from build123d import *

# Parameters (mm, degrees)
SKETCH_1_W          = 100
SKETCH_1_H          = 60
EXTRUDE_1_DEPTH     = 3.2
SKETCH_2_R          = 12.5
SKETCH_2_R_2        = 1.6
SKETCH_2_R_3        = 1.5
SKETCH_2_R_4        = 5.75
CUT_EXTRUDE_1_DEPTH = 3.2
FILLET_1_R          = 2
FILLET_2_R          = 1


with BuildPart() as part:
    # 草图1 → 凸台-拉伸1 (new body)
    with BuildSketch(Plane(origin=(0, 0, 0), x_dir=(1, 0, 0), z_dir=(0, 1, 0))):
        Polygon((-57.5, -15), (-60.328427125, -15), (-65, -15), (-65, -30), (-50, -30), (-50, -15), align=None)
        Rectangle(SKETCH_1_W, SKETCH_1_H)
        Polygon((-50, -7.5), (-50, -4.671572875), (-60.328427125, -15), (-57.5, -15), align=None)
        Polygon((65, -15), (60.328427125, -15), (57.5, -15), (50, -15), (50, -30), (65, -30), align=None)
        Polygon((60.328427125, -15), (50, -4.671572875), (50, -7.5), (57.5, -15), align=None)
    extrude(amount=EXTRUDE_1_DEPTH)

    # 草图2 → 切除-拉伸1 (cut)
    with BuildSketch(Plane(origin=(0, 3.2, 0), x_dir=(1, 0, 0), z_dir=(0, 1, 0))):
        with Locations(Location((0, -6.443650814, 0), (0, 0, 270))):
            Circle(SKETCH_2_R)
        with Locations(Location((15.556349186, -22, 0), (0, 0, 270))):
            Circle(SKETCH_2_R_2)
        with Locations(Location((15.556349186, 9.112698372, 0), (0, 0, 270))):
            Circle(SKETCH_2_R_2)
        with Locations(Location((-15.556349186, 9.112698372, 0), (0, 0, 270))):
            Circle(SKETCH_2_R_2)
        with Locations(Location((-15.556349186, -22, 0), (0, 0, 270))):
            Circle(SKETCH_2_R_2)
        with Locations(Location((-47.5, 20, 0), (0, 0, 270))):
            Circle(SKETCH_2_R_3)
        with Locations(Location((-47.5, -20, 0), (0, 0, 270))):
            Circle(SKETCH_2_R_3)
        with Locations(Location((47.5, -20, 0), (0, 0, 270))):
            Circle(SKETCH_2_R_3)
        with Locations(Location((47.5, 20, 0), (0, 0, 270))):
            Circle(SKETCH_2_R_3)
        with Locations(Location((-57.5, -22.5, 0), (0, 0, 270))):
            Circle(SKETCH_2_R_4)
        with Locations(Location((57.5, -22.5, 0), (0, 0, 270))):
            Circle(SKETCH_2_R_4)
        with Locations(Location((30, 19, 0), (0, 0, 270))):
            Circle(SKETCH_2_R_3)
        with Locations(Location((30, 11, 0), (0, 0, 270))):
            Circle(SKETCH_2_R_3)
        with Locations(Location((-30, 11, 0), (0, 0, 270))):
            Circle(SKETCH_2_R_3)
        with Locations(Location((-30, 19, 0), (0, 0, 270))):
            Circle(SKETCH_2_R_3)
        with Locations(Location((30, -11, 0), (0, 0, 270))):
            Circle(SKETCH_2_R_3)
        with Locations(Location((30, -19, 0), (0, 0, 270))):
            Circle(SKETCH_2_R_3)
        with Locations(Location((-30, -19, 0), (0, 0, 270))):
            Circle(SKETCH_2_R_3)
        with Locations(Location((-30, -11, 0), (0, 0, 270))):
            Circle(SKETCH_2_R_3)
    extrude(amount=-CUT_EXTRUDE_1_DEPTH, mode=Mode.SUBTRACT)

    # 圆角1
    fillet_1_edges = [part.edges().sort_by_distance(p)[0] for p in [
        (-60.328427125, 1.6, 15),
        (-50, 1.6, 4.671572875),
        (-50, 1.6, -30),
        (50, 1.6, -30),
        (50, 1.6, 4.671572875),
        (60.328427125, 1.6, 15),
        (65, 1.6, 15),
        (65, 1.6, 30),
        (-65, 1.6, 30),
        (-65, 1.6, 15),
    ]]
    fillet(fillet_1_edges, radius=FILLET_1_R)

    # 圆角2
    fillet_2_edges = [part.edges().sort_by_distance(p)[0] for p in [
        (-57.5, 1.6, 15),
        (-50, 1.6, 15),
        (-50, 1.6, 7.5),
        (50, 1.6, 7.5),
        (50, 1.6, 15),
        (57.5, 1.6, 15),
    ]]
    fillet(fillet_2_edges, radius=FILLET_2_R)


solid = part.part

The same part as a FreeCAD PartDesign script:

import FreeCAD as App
import Part
import Sketcher

V = App.Vector
Q = App.Units.Quantity


def edges_at(feature, points):
    """Names of the edges that pass closest to the given points."""
    edges = feature.Shape.Edges
    near = lambda p: min(range(len(edges)), key=lambda i: edges[i].distToShape(Part.Vertex(*p))[0])
    return sorted({f"Edge{near(p) + 1}" for p in points})

doc = App.newDocument("Part")
body = doc.addObject("PartDesign::Body", "Body")

# Sketch on XZ plane
sketch1 = body.newObject("Sketcher::SketchObject", "Sketch")
sketch1.AttachmentSupport = (doc.getObject("XZ_Plane"), [""])
sketch1.MapMode = "FlatFace"
sketch1.addGeometry([
    Part.LineSegment(V(-65, 15, 0), V(-65, 30, 0)),  # 0
    Part.LineSegment(V(-65, 30, 0), V(65, 30, 0)),  # 1
    Part.LineSegment(V(65, 30, 0), V(65, 15, 0)),  # 2
    Part.LineSegment(V(65, 15, 0), V(60.3, 15, 0)),  # 3
    Part.LineSegment(V(60.3, 15, 0), V(50, 4.7, 0)),  # 4
    Part.LineSegment(V(50, 4.7, 0), V(50, -30, 0)),  # 5
    Part.LineSegment(V(50, -30, 0), V(-50, -30, 0)),  # 6
    Part.LineSegment(V(-50, -30, 0), V(-50, 4.7, 0)),  # 7
    Part.LineSegment(V(-50, 4.7, 0), V(-60.3, 15, 0)),  # 8
    Part.LineSegment(V(-60.3, 15, 0), V(-65, 15, 0)),  # 9
    Part.LineSegment(V(57.5, 15, 0), V(50, 15, 0)),  # 10
    Part.LineSegment(V(50, 15, 0), V(50, 7.5, 0)),  # 11
    Part.LineSegment(V(50, 7.5, 0), V(57.5, 15, 0)),  # 12
    Part.LineSegment(V(-50, 7.5, 0), V(-50, 15, 0)),  # 13
    Part.LineSegment(V(-50, 15, 0), V(-57.5, 15, 0)),  # 14
    Part.LineSegment(V(-57.5, 15, 0), V(-50, 7.5, 0)),  # 15
], False)
sketch1.addConstraint([
    Sketcher.Constraint("Coincident", 0, 2, 1, 1),
    Sketcher.Constraint("Coincident", 1, 2, 2, 1),
    Sketcher.Constraint("Coincident", 2, 2, 3, 1),
    Sketcher.Constraint("Coincident", 3, 2, 4, 1),
    Sketcher.Constraint("Coincident", 4, 2, 5, 1),
    Sketcher.Constraint("Coincident", 5, 2, 6, 1),
    Sketcher.Constraint("Coincident", 6, 2, 7, 1),
    Sketcher.Constraint("Coincident", 7, 2, 8, 1),
    Sketcher.Constraint("Coincident", 8, 2, 9, 1),
    Sketcher.Constraint("Coincident", 9, 2, 0, 1),
    Sketcher.Constraint("Coincident", 10, 2, 11, 1),
    Sketcher.Constraint("Coincident", 11, 2, 12, 1),
    Sketcher.Constraint("Coincident", 12, 2, 10, 1),
    Sketcher.Constraint("Coincident", 13, 2, 14, 1),
    Sketcher.Constraint("Coincident", 14, 2, 15, 1),
    Sketcher.Constraint("Coincident", 15, 2, 13, 1),
    Sketcher.Constraint("Vertical", 0),
    Sketcher.Constraint("Horizontal", 1),
    Sketcher.Constraint("Vertical", 2),
    Sketcher.Constraint("Horizontal", 3),
    Sketcher.Constraint("Vertical", 5),
    Sketcher.Constraint("Horizontal", 6),
    Sketcher.Constraint("Vertical", 7),
    Sketcher.Constraint("Horizontal", 9),
    Sketcher.Constraint("Horizontal", 10),
    Sketcher.Constraint("Vertical", 11),
    Sketcher.Constraint("Vertical", 13),
    Sketcher.Constraint("Horizontal", 14),
    Sketcher.Constraint("Symmetric", 4, 2, 7, 2, -2),
    Sketcher.Constraint("Symmetric", 3, 2, 8, 2, -2),
    Sketcher.Constraint("Symmetric", 10, 2, 13, 2, -2),
    Sketcher.Constraint("Perpendicular", 4, 8),
    Sketcher.Constraint("Perpendicular", 8, 12),
    Sketcher.Constraint("Perpendicular", 12, 15),
    Sketcher.Constraint("Horizontal", 9, 2, 10, 2),
    Sketcher.Constraint("Horizontal", 11, 2, 15, 2),
    Sketcher.Constraint("Vertical", 5, 2, 10, 2),
    Sketcher.Constraint("Equal", 3, 9),
    Sketcher.Constraint("DistanceX", 1, 1, 1, 2, Q("130 mm")),
    Sketcher.Constraint("DistanceX", 6, 2, 6, 1, Q("100 mm")),
    Sketcher.Constraint("DistanceY", 0, 1, 0, 2, Q("15 mm")),
    Sketcher.Constraint("DistanceX", 10, 2, 10, 1, Q("7.5 mm")),
    Sketcher.Constraint("DistanceY", -1, 1, 0, 2, Q("30 mm")),
    Sketcher.Constraint("DistanceY", 5, 2, -1, 1, Q("30 mm")),
    Sketcher.Constraint("Distance", 4, Q("14.606602 mm")),
])
pad1 = body.newObject("PartDesign::Pad", "Pad")
pad1.Profile = sketch1
pad1.Length = 3.2
pad1.Reversed = True

# Sketch on XZ plane
sketch2 = body.newObject("Sketcher::SketchObject", "Sketch001")
sketch2.AttachmentSupport = (doc.getObject("XZ_Plane"), [""])
sketch2.MapMode = "FlatFace"
sketch2.AttachmentOffset = App.Placement(V(0, 0, -3.2), App.Rotation())
sketch2.addGeometry([
    Part.Circle(V(0, 6.4, 0), V(0, 0, 1), 12.5),  # 0
    Part.Circle(V(15.6, 22, 0), V(0, 0, 1), 1.6),  # 1
    Part.Circle(V(15.6, -9.1, 0), V(0, 0, 1), 1.6),  # 2
    Part.Circle(V(-15.6, -9.1, 0), V(0, 0, 1), 1.6),  # 3
    Part.Circle(V(-15.6, 22, 0), V(0, 0, 1), 1.6),  # 4
    Part.Circle(V(-47.5, -20, 0), V(0, 0, 1), 1.5),  # 5
    Part.Circle(V(-47.5, 20, 0), V(0, 0, 1), 1.5),  # 6
    Part.Circle(V(47.5, 20, 0), V(0, 0, 1), 1.5),  # 7
    Part.Circle(V(47.5, -20, 0), V(0, 0, 1), 1.5),  # 8
    Part.Circle(V(-57.5, 22.5, 0), V(0, 0, 1), 5.8),  # 9
    Part.Circle(V(57.5, 22.5, 0), V(0, 0, 1), 5.8),  # 10
    Part.Circle(V(30, -19, 0), V(0, 0, 1), 1.5),  # 11
    Part.Circle(V(30, -11, 0), V(0, 0, 1), 1.5),  # 12
    Part.Circle(V(-30, -11, 0), V(0, 0, 1), 1.5),  # 13
    Part.Circle(V(-30, -19, 0), V(0, 0, 1), 1.5),  # 14
    Part.Circle(V(30, 11, 0), V(0, 0, 1), 1.5),  # 15
    Part.Circle(V(30, 19, 0), V(0, 0, 1), 1.5),  # 16
    Part.Circle(V(-30, 19, 0), V(0, 0, 1), 1.5),  # 17
    Part.Circle(V(-30, 11, 0), V(0, 0, 1), 1.5),  # 18
], False)
sketch2.addConstraint([
    Sketcher.Constraint("Equal", 1, 2),
    Sketcher.Constraint("Equal", 2, 3),
    Sketcher.Constraint("Equal", 3, 4),
    Sketcher.Constraint("Equal", 5, 6),
    Sketcher.Constraint("Equal", 6, 7),
    Sketcher.Constraint("Equal", 7, 8),
    Sketcher.Constraint("Equal", 9, 10),
    Sketcher.Constraint("Equal", 8, 11),
    Sketcher.Constraint("Equal", 11, 12),
    Sketcher.Constraint("Equal", 12, 13),
    Sketcher.Constraint("Equal", 13, 14),
    Sketcher.Constraint("Equal", 14, 15),
    Sketcher.Constraint("Equal", 15, 16),
    Sketcher.Constraint("Equal", 16, 17),
    Sketcher.Constraint("Equal", 17, 18),
    Sketcher.Constraint("Symmetric", 5, 3, 7, 3, -1, 1),
    Sketcher.Constraint("Symmetric", 6, 3, 8, 3, -1, 1),
    Sketcher.Constraint("Symmetric", 13, 3, 15, 3, -1, 1),
    Sketcher.Constraint("Symmetric", 14, 3, 16, 3, -1, 1),
    Sketcher.Constraint("Symmetric", 11, 3, 17, 3, -1, 1),
    Sketcher.Constraint("Symmetric", 12, 3, 18, 3, -1, 1),
    Sketcher.Constraint("Symmetric", 2, 3, 3, 3, -2),
    Sketcher.Constraint("Symmetric", 1, 3, 4, 3, -2),
    Sketcher.Constraint("Symmetric", 6, 3, 7, 3, -2),
    Sketcher.Constraint("Symmetric", 9, 3, 10, 3, -2),
    Sketcher.Constraint("Symmetric", 12, 3, 13, 3, -2),
    Sketcher.Constraint("Symmetric", 11, 3, 14, 3, -2),
    Sketcher.Constraint("PointOnObject", 0, 3, -2),
    Sketcher.Constraint("Vertical", 1, 3, 2, 3),
    Sketcher.Constraint("Vertical", 11, 3, 12, 3),
    Sketcher.Constraint("Diameter", 0, Q("25 mm")),
    Sketcher.Constraint("Diameter", 5, Q("3 mm")),
    Sketcher.Constraint("Diameter", 1, Q("3.2 mm")),
    Sketcher.Constraint("Diameter", 9, Q("11.5 mm")),
    Sketcher.Constraint("DistanceY", -1, 1, 1, 3, Q("22 mm")),
    Sketcher.Constraint("DistanceY", 5, 3, -1, 1, Q("20 mm")),
    Sketcher.Constraint("DistanceX", -1, 1, 11, 3, Q("30 mm")),
    Sketcher.Constraint("DistanceY", 11, 3, -1, 1, Q("19 mm")),
    Sketcher.Constraint("DistanceY", 12, 3, -1, 1, Q("11 mm")),
    Sketcher.Constraint("DistanceX", 9, 3, 6, 3, Q("10 mm")),
    Sketcher.Constraint("DistanceX", 5, 3, -1, 1, Q("47.5 mm")),
    Sketcher.Constraint("DistanceY", -1, 1, 9, 3, Q("22.5 mm")),
    Sketcher.Constraint("DistanceY", 2, 3, -1, 1, Q("9.112698 mm")),
    Sketcher.Constraint("DistanceX", 3, 3, 2, 3, Q("31.112698 mm")),
    Sketcher.Constraint("DistanceY", -1, 1, 0, 3, Q("6.443651 mm")),
])
pocket1 = body.newObject("PartDesign::Pocket", "Pocket")
pocket1.Profile = sketch2
pocket1.Length = 3.2
pocket1.Reversed = True
doc.recompute()

fillet = body.newObject("PartDesign::Fillet", "Fillet")
fillet.Base = (pocket1, edges_at(pocket1, [
    (-60.328, 1.6, 15),
    (-50, 1.6, 4.672),
    (-50, 1.6, -30),
    (50, 1.6, -30),
    (50, 1.6, 4.672),
    (60.328, 1.6, 15),
    (65, 1.6, 15),
    (65, 1.6, 30),
    (-65, 1.6, 30),
    (-65, 1.6, 15),
]))
fillet.Radius = 2
doc.recompute()

fillet2 = body.newObject("PartDesign::Fillet", "Fillet001")
fillet2.Base = (fillet, edges_at(fillet, [
    (-57.5, 1.6, 15),
    (-50, 1.6, 15),
    (-50, 1.6, 7.5),
    (50, 1.6, 7.5),
    (50, 1.6, 15),
    (57.5, 1.6, 15),
]))
fillet2.Radius = 1

doc.recompute()
